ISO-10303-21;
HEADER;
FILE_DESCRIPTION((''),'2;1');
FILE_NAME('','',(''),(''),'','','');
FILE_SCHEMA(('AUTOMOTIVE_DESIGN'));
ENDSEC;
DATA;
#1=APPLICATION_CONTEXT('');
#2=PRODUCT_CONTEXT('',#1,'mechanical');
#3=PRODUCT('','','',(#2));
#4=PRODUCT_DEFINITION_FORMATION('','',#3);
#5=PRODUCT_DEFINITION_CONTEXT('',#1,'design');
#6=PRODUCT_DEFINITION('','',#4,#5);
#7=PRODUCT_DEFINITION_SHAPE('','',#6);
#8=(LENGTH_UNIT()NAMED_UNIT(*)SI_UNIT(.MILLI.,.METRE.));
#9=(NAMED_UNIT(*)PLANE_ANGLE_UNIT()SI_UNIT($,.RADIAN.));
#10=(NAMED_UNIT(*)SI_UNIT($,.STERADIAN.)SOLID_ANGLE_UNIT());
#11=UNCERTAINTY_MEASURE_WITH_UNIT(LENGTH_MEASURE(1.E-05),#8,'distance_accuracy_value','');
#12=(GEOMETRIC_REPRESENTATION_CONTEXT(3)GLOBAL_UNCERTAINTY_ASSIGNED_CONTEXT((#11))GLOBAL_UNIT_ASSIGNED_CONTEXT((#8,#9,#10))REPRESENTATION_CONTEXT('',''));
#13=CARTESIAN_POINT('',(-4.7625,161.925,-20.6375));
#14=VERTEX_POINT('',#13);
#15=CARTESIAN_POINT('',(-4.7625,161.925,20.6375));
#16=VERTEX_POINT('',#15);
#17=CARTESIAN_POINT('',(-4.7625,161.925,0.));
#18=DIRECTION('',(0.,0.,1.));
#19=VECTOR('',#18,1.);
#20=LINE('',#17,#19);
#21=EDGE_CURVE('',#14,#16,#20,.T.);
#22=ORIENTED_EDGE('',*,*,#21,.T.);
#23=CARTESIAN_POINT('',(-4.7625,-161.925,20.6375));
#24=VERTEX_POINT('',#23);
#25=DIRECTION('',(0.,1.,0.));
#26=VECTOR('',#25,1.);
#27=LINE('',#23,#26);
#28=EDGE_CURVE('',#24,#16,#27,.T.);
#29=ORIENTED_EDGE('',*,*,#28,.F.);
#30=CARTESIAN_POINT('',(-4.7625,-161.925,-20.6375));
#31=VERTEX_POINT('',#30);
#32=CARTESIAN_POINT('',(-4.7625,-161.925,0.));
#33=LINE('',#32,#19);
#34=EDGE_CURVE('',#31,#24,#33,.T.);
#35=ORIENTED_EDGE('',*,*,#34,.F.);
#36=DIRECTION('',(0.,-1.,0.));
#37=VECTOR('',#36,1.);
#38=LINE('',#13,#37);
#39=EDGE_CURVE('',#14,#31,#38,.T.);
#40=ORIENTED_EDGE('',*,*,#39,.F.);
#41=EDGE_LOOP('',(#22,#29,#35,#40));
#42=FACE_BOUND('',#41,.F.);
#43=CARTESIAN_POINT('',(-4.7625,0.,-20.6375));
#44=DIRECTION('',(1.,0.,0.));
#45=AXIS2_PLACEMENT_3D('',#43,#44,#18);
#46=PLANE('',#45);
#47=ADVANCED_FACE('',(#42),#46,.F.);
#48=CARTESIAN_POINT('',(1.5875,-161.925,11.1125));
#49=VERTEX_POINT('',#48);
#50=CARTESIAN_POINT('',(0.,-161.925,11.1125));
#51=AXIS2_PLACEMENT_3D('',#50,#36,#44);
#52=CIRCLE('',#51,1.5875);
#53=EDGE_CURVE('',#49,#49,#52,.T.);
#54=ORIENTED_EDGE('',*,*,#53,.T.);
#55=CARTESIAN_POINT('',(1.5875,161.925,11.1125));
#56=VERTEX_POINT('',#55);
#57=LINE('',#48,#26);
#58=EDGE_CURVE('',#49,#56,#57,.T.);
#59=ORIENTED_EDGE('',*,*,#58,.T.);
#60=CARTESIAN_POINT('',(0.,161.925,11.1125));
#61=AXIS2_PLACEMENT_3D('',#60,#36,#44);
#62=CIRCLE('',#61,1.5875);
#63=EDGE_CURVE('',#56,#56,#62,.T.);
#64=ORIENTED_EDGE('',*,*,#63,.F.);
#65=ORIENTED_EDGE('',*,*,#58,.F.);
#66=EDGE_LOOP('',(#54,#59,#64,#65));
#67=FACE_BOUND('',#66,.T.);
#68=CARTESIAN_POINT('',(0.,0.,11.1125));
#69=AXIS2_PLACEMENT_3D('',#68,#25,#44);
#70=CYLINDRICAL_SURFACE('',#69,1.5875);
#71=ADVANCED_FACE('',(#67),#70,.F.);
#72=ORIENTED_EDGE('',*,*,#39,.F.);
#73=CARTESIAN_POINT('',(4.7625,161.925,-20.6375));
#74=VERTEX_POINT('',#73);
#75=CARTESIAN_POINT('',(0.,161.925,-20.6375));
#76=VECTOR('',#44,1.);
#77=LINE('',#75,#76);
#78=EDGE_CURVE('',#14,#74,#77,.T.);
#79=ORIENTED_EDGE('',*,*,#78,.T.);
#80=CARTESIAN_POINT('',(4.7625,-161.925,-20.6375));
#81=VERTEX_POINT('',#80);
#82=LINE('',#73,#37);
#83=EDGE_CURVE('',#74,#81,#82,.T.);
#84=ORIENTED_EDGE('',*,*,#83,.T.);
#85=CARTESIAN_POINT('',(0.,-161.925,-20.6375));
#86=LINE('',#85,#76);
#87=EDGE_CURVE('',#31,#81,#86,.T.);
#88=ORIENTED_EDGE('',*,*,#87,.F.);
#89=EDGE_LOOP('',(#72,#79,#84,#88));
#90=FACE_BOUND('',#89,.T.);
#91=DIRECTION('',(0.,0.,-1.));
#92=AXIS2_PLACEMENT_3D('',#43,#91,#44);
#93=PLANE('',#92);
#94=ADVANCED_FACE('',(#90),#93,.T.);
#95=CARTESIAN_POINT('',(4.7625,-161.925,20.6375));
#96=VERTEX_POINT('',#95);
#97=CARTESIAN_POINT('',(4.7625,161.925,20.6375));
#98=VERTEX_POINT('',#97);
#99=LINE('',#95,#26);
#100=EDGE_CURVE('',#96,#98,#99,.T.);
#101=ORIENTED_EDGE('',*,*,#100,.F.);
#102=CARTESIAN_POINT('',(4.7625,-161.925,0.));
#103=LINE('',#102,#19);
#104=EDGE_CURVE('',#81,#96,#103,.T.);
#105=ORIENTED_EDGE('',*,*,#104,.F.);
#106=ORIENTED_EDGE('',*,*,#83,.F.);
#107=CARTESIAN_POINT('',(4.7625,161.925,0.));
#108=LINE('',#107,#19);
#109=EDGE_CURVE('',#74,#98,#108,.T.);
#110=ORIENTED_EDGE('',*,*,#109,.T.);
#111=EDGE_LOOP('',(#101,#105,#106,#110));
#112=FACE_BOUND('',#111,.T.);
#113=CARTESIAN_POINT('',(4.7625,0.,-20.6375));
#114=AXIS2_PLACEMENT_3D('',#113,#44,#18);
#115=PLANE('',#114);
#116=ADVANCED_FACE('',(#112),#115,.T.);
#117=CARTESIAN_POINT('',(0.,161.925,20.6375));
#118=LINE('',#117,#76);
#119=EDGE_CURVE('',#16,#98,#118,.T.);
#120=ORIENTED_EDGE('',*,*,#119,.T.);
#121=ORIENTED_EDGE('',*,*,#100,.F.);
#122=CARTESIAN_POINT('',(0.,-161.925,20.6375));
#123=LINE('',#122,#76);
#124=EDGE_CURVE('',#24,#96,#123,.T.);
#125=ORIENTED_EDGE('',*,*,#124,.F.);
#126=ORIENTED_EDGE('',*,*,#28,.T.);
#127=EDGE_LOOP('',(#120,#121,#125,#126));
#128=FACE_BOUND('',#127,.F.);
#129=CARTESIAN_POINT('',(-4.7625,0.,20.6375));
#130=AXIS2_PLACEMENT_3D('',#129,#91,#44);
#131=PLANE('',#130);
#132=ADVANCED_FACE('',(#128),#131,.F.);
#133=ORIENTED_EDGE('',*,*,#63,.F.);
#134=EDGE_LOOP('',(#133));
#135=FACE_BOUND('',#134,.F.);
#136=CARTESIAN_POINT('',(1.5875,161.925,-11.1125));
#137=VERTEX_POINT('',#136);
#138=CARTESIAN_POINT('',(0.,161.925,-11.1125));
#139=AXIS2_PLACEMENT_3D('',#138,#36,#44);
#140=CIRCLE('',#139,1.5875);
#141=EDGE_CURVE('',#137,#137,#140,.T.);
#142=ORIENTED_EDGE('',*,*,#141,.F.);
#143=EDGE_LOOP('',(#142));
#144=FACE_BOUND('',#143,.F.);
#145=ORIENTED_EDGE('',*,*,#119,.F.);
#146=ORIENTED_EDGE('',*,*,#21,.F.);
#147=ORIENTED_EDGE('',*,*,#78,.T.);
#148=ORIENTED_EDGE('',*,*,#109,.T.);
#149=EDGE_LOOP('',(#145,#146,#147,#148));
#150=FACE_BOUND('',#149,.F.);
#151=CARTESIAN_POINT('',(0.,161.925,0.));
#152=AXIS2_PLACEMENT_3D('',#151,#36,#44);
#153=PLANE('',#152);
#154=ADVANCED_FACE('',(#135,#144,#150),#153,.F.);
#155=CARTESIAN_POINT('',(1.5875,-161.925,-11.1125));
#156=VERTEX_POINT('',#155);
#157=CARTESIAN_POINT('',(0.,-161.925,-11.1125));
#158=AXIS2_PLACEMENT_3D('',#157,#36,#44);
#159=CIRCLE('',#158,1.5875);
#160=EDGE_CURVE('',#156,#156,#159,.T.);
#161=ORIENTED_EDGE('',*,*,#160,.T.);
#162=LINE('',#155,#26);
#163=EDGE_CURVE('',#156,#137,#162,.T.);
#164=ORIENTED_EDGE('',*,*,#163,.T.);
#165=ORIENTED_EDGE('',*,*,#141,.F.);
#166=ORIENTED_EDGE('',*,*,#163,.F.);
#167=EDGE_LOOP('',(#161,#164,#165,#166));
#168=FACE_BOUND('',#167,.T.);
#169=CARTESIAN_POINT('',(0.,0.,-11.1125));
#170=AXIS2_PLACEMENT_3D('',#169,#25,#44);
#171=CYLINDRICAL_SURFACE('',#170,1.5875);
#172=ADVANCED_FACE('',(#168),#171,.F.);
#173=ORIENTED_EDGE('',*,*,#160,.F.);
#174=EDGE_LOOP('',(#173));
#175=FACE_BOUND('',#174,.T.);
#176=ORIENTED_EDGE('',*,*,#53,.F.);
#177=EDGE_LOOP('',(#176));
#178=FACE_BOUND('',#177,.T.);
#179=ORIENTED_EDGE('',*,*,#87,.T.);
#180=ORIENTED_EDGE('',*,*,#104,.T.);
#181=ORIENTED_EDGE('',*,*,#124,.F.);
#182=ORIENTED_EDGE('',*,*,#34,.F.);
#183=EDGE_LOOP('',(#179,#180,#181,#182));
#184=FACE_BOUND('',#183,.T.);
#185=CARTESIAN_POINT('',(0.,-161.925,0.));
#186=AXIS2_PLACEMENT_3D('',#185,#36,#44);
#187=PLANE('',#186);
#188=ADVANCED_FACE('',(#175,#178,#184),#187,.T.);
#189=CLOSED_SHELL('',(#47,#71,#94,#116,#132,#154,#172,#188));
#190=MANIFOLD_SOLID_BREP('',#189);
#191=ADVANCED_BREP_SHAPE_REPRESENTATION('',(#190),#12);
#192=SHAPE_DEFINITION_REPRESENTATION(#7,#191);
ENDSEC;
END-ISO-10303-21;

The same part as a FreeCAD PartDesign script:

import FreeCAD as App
import Part
import Sketcher
Q = App.Units.Quantity


def add_polygon(sketch, points):
    """Adds a closed chain of lines whose ends are joined by coincident constraints."""
    first, n = sketch.GeometryCount, len(points)
    for a, b in zip(points, points[1:] + points[:1]):
        sketch.addGeometry(Part.LineSegment(App.Vector(*a, 0), App.Vector(*b, 0)), False)
    for i in range(n):
        sketch.addConstraint(Sketcher.Constraint("Coincident", first + i, 2, first + (i + 1) % n, 1))

doc = App.newDocument("Part")
body = doc.addObject("PartDesign::Body", "Body")

sketch1 = body.newObject("Sketcher::SketchObject", "Sketch")
sketch1.AttachmentSupport = (doc.getObject("XZ_Plane"), [""])
sketch1.MapMode = "FlatFace"
add_polygon(sketch1, [(-4.7625, 20.6375), (-4.7625, -20.6375), (4.7625, -20.6375), (4.7625, 20.6375)])
sketch1.addGeometry(Part.Circle(App.Vector(0, -11.1125, 0), App.Vector(0, 0, 1), 1.5875), False)
sketch1.addGeometry(Part.Circle(App.Vector(0, 11.1125, 0), App.Vector(0, 0, 1), 1.5875), False)
sketch1.addConstraint(Sketcher.Constraint("Vertical", 0))
sketch1.addConstraint(Sketcher.Constraint("Horizontal", 1))
sketch1.addConstraint(Sketcher.Constraint("Vertical", 2))
sketch1.addConstraint(Sketcher.Constraint("Horizontal", 3))
sketch1.addConstraint(Sketcher.Constraint("Equal", 4, 5))
sketch1.addConstraint(Sketcher.Constraint("Symmetric", 4, 3, 5, 3, -1, 1))
sketch1.addConstraint(Sketcher.Constraint("Symmetric", 0, 2, 2, 2, -1, 1))
sketch1.addConstraint(Sketcher.Constraint("PointOnObject", 4, 3, -2))
sketch1.addConstraint(Sketcher.Constraint("Diameter", 4, Q("0.125 in")))
sketch1.addConstraint(Sketcher.Constraint("DistanceX", 1, 1, 1, 2, Q("0.375 in")))
sketch1.addConstraint(Sketcher.Constraint("DistanceY", 0, 2, 0, 1, Q("1.625 in")))
sketch1.addConstraint(Sketcher.Constraint("DistanceY", 0, 2, 5, 3, Q("1.25 in")))
pad1 = body.newObject("PartDesign::Pad", "Pad")
pad1.Profile = sketch1
pad1.Length = Q("12.75 in")
pad1.Midplane = True

doc.recompute()
